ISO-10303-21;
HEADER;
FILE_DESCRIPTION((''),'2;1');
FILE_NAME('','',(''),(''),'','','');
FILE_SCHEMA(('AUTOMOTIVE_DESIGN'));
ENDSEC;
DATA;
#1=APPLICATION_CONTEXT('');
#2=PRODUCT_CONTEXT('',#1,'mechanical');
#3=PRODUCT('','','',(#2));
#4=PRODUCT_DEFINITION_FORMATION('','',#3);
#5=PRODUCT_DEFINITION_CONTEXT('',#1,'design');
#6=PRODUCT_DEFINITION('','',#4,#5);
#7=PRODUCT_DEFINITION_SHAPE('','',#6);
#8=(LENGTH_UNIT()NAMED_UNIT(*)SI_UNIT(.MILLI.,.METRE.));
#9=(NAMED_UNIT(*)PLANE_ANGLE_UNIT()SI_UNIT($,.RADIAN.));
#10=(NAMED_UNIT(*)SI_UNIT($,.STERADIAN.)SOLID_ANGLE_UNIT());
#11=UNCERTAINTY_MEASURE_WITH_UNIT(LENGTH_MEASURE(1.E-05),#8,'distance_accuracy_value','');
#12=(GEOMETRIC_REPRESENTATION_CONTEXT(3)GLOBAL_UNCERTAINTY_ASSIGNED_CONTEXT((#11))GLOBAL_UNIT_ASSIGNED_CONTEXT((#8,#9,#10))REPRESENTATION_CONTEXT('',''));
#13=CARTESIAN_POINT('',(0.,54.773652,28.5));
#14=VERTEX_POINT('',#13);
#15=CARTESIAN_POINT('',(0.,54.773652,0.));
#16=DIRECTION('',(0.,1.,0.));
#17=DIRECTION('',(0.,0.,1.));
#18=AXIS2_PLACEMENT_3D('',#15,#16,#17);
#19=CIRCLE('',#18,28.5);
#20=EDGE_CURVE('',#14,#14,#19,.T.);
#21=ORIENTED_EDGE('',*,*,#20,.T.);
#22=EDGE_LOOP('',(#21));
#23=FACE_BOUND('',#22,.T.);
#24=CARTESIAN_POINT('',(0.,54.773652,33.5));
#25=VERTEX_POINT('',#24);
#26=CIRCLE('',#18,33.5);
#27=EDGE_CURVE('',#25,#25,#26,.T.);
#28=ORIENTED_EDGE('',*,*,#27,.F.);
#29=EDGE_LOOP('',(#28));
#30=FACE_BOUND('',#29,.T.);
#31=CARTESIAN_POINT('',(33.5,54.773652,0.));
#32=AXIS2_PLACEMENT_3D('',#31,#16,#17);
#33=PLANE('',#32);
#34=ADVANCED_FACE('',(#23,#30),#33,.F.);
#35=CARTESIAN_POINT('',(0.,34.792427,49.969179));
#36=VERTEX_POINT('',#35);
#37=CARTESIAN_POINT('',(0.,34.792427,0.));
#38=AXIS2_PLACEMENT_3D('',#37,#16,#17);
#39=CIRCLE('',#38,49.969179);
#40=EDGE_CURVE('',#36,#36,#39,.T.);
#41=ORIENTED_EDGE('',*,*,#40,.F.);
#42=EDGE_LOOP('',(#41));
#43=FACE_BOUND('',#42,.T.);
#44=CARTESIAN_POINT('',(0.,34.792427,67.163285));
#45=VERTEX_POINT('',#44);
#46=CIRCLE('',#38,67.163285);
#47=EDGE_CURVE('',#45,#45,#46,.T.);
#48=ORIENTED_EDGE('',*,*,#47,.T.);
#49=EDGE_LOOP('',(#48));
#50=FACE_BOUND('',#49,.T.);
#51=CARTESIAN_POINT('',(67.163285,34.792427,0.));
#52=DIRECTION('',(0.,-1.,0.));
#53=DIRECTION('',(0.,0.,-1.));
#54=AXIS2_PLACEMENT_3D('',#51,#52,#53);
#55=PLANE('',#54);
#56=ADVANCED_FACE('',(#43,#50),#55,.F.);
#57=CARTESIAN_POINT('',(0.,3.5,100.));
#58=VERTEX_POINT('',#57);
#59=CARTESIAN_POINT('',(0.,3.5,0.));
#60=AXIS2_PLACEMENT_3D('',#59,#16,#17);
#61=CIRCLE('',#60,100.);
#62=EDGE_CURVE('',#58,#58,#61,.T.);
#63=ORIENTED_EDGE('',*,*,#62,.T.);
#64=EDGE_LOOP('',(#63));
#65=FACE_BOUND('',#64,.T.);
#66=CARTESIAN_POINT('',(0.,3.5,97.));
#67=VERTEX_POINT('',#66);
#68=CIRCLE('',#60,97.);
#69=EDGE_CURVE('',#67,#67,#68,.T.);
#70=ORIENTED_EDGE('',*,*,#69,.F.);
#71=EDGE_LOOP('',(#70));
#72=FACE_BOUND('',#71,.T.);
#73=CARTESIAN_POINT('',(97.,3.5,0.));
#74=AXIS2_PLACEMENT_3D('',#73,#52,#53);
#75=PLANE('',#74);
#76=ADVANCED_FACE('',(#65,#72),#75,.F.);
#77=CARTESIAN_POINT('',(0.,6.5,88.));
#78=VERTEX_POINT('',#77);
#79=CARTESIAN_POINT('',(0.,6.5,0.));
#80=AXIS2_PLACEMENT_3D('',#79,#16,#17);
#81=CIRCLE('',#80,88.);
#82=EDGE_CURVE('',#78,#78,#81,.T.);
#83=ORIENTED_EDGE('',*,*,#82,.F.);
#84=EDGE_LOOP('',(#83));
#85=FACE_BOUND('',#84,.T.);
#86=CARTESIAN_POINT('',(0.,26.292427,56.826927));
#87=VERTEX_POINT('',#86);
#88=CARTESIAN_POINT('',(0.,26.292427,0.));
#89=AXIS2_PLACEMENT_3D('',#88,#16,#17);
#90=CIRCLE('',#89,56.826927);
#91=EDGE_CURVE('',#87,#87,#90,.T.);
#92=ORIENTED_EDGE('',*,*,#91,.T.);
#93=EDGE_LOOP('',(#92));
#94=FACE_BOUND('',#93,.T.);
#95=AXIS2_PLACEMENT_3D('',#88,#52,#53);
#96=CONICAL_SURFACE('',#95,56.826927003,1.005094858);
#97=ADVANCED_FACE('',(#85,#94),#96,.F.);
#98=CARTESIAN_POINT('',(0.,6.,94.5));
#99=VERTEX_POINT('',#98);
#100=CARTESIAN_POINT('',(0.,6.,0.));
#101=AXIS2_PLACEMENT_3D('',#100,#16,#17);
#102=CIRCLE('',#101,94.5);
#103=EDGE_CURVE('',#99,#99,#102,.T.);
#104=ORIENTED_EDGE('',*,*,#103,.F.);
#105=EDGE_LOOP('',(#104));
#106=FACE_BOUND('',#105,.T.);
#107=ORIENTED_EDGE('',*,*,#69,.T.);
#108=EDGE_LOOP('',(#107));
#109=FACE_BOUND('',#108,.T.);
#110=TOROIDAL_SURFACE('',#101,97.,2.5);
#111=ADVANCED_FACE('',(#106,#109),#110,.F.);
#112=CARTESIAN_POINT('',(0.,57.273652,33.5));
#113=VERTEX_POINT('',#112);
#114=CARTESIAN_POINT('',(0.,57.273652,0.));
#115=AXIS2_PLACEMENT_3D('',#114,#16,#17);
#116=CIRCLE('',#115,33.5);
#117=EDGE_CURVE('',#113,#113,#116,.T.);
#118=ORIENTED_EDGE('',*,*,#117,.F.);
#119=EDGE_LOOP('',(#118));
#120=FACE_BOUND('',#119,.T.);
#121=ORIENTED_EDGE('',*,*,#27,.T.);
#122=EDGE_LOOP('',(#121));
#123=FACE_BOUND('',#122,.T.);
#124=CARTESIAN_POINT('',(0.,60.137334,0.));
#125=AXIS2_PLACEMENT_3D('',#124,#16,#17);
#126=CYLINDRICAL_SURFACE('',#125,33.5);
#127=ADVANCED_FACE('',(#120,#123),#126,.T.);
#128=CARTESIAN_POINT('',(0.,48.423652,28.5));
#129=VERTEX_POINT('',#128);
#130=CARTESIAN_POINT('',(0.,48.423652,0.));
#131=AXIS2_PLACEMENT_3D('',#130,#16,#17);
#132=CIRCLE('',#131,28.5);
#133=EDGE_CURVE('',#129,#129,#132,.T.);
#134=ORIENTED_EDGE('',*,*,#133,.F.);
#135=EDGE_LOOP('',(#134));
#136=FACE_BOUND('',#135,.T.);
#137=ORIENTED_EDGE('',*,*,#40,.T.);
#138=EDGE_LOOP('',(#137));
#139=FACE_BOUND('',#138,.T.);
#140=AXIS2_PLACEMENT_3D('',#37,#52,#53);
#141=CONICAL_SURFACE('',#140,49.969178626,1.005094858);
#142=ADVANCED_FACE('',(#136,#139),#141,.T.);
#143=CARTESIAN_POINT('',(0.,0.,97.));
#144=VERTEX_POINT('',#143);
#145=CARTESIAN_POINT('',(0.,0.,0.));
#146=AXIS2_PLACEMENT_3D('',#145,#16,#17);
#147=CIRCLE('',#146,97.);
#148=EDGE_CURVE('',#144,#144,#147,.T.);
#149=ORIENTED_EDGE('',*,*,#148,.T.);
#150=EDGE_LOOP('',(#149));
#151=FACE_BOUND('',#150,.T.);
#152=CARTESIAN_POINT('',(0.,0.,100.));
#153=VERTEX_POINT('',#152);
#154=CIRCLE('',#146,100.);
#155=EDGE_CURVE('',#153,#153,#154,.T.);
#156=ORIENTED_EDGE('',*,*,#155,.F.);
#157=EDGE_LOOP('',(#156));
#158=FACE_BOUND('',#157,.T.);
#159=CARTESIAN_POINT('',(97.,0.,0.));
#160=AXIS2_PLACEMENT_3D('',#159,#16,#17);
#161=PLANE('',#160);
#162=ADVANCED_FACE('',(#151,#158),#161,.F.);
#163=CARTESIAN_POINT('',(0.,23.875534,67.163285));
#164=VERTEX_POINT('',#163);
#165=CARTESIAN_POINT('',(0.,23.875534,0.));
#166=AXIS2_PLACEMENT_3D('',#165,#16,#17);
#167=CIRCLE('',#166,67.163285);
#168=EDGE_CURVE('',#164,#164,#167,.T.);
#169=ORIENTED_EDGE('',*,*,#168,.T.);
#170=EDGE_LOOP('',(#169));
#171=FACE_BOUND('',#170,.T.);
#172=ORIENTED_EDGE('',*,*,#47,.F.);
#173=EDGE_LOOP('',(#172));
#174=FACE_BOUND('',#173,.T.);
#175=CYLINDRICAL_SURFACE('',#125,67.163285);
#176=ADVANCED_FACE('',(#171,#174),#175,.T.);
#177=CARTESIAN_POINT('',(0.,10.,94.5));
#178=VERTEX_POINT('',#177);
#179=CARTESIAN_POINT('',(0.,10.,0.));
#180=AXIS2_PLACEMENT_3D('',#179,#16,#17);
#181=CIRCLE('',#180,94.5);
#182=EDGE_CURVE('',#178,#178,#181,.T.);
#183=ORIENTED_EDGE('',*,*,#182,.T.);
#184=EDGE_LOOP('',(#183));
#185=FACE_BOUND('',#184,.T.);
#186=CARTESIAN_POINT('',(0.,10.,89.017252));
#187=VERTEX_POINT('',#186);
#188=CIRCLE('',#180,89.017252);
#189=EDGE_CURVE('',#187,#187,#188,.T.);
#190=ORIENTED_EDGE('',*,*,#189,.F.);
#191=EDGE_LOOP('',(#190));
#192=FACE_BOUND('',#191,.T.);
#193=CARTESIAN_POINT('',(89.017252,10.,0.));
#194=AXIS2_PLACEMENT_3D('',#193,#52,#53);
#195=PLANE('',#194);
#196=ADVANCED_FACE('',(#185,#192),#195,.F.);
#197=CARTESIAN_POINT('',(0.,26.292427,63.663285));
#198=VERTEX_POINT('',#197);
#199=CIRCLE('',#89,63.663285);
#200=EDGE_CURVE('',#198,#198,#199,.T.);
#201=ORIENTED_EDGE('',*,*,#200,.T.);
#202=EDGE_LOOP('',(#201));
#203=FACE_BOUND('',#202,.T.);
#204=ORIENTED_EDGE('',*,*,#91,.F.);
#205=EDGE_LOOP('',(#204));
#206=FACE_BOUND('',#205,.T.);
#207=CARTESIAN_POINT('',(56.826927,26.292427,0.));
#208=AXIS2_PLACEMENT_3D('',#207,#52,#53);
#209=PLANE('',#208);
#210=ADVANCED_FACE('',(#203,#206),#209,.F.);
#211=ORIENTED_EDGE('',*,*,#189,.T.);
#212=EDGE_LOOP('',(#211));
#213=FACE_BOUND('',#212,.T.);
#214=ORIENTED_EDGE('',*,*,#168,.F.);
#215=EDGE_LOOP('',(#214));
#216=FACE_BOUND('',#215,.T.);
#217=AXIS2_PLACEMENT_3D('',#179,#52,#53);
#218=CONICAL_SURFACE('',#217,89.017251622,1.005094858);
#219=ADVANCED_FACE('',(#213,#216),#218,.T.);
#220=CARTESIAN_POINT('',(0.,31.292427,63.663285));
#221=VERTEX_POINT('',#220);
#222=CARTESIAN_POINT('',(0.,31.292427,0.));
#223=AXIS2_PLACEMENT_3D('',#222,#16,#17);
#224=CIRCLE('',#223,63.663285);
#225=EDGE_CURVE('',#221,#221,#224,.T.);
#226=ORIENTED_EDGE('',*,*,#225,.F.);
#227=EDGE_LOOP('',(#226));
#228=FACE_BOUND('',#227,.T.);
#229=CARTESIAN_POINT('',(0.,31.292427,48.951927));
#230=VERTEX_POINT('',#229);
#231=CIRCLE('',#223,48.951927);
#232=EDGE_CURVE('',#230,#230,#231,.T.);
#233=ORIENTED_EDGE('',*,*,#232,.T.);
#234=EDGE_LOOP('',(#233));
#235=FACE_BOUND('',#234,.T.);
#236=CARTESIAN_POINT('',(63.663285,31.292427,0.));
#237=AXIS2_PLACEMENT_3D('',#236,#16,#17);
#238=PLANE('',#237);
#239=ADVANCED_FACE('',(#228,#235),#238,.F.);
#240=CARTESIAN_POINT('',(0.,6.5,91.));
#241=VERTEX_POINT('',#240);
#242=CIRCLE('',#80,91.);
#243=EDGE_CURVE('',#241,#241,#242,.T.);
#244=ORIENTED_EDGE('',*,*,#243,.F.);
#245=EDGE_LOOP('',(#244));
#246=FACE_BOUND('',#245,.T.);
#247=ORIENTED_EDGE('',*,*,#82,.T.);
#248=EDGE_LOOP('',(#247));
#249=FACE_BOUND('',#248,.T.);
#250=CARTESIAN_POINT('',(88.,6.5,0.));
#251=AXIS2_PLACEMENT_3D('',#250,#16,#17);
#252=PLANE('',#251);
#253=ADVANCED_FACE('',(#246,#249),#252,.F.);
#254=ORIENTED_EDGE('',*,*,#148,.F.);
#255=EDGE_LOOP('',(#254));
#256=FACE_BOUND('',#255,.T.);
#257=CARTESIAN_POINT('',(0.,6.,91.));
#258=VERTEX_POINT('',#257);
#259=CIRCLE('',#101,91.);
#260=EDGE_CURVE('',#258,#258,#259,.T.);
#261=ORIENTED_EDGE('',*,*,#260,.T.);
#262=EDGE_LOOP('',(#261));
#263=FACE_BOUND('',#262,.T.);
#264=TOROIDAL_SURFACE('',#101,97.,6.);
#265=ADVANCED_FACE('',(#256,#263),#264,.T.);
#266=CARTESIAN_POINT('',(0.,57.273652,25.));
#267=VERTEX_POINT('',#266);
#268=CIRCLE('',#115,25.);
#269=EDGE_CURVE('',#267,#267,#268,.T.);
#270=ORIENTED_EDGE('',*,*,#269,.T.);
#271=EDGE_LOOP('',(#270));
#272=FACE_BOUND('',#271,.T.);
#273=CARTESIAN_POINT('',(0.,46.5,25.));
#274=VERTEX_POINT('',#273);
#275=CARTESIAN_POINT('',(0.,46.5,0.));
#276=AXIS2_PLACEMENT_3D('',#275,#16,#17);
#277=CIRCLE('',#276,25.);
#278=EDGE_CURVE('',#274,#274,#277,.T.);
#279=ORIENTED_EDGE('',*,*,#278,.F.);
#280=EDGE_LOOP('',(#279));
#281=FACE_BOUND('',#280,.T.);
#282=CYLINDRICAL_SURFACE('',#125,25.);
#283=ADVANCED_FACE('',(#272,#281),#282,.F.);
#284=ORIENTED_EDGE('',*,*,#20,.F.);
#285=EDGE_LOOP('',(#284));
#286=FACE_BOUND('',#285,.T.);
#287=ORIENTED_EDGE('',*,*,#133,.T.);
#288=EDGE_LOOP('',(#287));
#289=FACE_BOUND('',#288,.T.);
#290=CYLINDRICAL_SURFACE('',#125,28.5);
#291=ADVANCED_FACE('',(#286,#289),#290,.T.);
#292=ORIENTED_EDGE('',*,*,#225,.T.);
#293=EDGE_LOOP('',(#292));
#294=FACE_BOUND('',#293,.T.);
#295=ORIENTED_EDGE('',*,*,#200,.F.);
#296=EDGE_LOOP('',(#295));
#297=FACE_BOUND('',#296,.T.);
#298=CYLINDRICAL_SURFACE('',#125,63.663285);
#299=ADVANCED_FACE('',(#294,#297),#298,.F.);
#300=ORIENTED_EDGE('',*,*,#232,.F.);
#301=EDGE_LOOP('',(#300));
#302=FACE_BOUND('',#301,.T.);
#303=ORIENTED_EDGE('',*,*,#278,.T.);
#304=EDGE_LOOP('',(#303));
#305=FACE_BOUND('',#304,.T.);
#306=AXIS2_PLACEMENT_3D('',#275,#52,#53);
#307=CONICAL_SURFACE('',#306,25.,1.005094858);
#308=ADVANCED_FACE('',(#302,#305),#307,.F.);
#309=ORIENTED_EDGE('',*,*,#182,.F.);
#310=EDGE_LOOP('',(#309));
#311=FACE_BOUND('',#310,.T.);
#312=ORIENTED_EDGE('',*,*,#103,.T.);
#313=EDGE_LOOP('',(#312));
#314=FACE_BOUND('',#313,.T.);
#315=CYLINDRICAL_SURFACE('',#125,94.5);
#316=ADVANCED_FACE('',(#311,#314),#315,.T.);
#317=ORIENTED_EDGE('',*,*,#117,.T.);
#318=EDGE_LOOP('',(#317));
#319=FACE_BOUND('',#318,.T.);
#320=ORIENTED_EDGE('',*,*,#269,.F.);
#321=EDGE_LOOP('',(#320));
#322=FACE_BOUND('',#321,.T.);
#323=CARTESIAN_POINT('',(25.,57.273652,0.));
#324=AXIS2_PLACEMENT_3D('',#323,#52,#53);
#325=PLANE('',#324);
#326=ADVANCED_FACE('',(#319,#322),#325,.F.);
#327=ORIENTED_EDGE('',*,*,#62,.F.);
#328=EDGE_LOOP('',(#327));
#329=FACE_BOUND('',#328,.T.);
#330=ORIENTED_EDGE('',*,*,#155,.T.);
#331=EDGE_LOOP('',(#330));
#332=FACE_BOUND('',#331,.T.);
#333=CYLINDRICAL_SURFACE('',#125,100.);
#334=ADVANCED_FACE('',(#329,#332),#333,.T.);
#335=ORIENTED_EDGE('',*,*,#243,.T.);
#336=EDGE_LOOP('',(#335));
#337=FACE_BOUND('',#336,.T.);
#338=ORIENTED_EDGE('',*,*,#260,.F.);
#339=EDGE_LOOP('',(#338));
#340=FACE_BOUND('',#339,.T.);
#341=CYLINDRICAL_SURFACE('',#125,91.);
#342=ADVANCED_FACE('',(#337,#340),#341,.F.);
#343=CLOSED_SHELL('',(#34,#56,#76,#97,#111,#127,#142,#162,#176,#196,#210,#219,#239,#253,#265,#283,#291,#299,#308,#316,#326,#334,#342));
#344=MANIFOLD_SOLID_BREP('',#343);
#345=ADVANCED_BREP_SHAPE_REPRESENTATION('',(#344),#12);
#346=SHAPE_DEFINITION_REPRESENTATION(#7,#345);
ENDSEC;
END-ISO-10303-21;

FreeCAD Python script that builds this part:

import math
import FreeCAD as App
import Part
import Sketcher
from FreeCAD import Vector

doc = App.newDocument("Part")
body = doc.addObject("PartDesign::Body", "Body")

sketch1 = doc.addObject("Sketcher::SketchObject", "Sketch")
body.addObject(sketch1)
sketch1.AttachmentSupport = (doc.XY_Plane, [""])
sketch1.MapMode = "FlatFace"
sketch1.addGeometry(Part.LineSegment(Vector(56.8, 26.3, 0), Vector(88, 6.5, 0)), False)
sketch1.addGeometry(Part.LineSegment(Vector(88, 6.5, 0), Vector(91, 6.5, 0)), False)
sketch1.addGeometry(Part.LineSegment(Vector(91, 6.5, 0), Vector(91, 6, 0)), False)
sketch1.addGeometry(Part.ArcOfCircle(Part.Circle(Vector(97, 6, 0), Vector(0, 0, 1), 6), math.radians(180), math.radians(270)), False)
sketch1.addGeometry(Part.LineSegment(Vector(97, 0, 0), Vector(100, 0, 0)), False)
sketch1.addGeometry(Part.LineSegment(Vector(100, 0, 0), Vector(100, 3.5, 0)), False)
sketch1.addGeometry(Part.LineSegment(Vector(100, 3.5, 0), Vector(97, 3.5, 0)), False)
sketch1.addGeometry(Part.ArcOfCircle(Part.Circle(Vector(97, 6, 0), Vector(0, 0, 1), 2.5), math.radians(180), math.radians(270)), False)
sketch1.addGeometry(Part.LineSegment(Vector(94.5, 6, 0), Vector(94.5, 10, 0)), False)
sketch1.addGeometry(Part.LineSegment(Vector(94.5, 10, 0), Vector(89, 10, 0)), False)
sketch1.addGeometry(Part.LineSegment(Vector(89, 10, 0), Vector(67.2, 23.9, 0)), False)
sketch1.addGeometry(Part.LineSegment(Vector(67.2, 23.9, 0), Vector(67.2, 34.8, 0)), False)
sketch1.addGeometry(Part.LineSegment(Vector(67.2, 34.8, 0), Vector(50, 34.8, 0)), False)
sketch1.addGeometry(Part.LineSegment(Vector(50, 34.8, 0), Vector(28.5, 48.4, 0)), False)
sketch1.addGeometry(Part.LineSegment(Vector(28.5, 48.4, 0), Vector(28.5, 54.8, 0)), False)
sketch1.addGeometry(Part.LineSegment(Vector(28.5, 54.8, 0), Vector(33.5, 54.8, 0)), False)
sketch1.addGeometry(Part.LineSegment(Vector(33.5, 54.8, 0), Vector(33.5, 57.3, 0)), False)
sketch1.addGeometry(Part.LineSegment(Vector(33.5, 57.3, 0), Vector(25, 57.3, 0)), False)
sketch1.addGeometry(Part.LineSegment(Vector(25, 57.3, 0), Vector(25, 46.5, 0)), False)
sketch1.addGeometry(Part.LineSegment(Vector(25, 46.5, 0), Vector(49, 31.3, 0)), False)
sketch1.addGeometry(Part.LineSegment(Vector(49, 31.3, 0), Vector(63.7, 31.3, 0)), False)
sketch1.addGeometry(Part.LineSegment(Vector(63.7, 31.3, 0), Vector(63.7, 26.3, 0)), False)
sketch1.addGeometry(Part.LineSegment(Vector(63.7, 26.3, 0), Vector(56.8, 26.3, 0)), False)
sketch1.addConstraint(Sketcher.Constraint("Coincident", 0, 2, 1, 1))
sketch1.addConstraint(Sketcher.Constraint("Coincident", 1, 2, 2, 1))
sketch1.addConstraint(Sketcher.Constraint("Tangent", 2, 2, 3, 1))
sketch1.addConstraint(Sketcher.Constraint("Tangent", 3, 2, 4, 1))
sketch1.addConstraint(Sketcher.Constraint("Coincident", 4, 2, 5, 1))
sketch1.addConstraint(Sketcher.Constraint("Coincident", 5, 2, 6, 1))
sketch1.addConstraint(Sketcher.Constraint("Tangent", 6, 2, 7, 2))
sketch1.addConstraint(Sketcher.Constraint("Tangent", 7, 1, 8, 1))
sketch1.addConstraint(Sketcher.Constraint("Coincident", 8, 2, 9, 1))
sketch1.addConstraint(Sketcher.Constraint("Coincident", 9, 2, 10, 1))
sketch1.addConstraint(Sketcher.Constraint("Coincident", 10, 2, 11, 1))
sketch1.addConstraint(Sketcher.Constraint("Coincident", 11, 2, 12, 1))
sketch1.addConstraint(Sketcher.Constraint("Coincident", 12, 2, 13, 1))
sketch1.addConstraint(Sketcher.Constraint("Coincident", 13, 2, 14, 1))
sketch1.addConstraint(Sketcher.Constraint("Coincident", 14, 2, 15, 1))
sketch1.addConstraint(Sketcher.Constraint("Coincident", 15, 2, 16, 1))
sketch1.addConstraint(Sketcher.Constraint("Coincident", 16, 2, 17, 1))
sketch1.addConstraint(Sketcher.Constraint("Coincident", 17, 2, 18, 1))
sketch1.addConstraint(Sketcher.Constraint("Coincident", 18, 2, 19, 1))
sketch1.addConstraint(Sketcher.Constraint("Coincident", 19, 2, 20, 1))
sketch1.addConstraint(Sketcher.Constraint("Coincident", 20, 2, 21, 1))
sketch1.addConstraint(Sketcher.Constraint("Coincident", 21, 2, 22, 1))
sketch1.addConstraint(Sketcher.Constraint("Coincident", 22, 2, 0, 1))
sketch1.addConstraint(Sketcher.Constraint("Horizontal", 1))
sketch1.addConstraint(Sketcher.Constraint("Vertical", 2))
sketch1.addConstraint(Sketcher.Constraint("Horizontal", 4))
sketch1.addConstraint(Sketcher.Constraint("Vertical", 5))
sketch1.addConstraint(Sketcher.Constraint("Horizontal", 6))
sketch1.addConstraint(Sketcher.Constraint("Vertical", 8))
sketch1.addConstraint(Sketcher.Constraint("Horizontal", 9))
sketch1.addConstraint(Sketcher.Constraint("Vertical", 11))
sketch1.addConstraint(Sketcher.Constraint("Horizontal", 12))
sketch1.addConstraint(Sketcher.Constraint("Vertical", 14))
sketch1.addConstraint(Sketcher.Constraint("Horizontal", 15))
sketch1.addConstraint(Sketcher.Constraint("Vertical", 16))
sketch1.addConstraint(Sketcher.Constraint("Horizontal", 17))
sketch1.addConstraint(Sketcher.Constraint("Vertical", 18))
sketch1.addConstraint(Sketcher.Constraint("Horizontal", 20))
sketch1.addConstraint(Sketcher.Constraint("Vertical", 21))
sketch1.addConstraint(Sketcher.Constraint("Horizontal", 22))
sketch1.addConstraint(Sketcher.Constraint("Coincident", 7, 3, 3, 3))
sketch1.addConstraint(Sketcher.Constraint("PointOnObject", 3, 2, -1))
sketch1.addConstraint(Sketcher.Constraint("Parallel", 0, 10))
sketch1.addConstraint(Sketcher.Constraint("Parallel", 10, 13))
sketch1.addConstraint(Sketcher.Constraint("Parallel", 13, 19))
sketch1.addConstraint(Sketcher.Constraint("Equal", 1, 4))
sketch1.addConstraint(Sketcher.Constraint("Equal", 15, 21))
sketch1.addConstraint(Sketcher.Constraint("Radius", 3, 6.0))
sketch1.addConstraint(Sketcher.Constraint("Radius", 7, 2.5))
sketch1.addConstraint(Sketcher.Constraint("DistanceX", 1, 1, 1, 2, 3.0))
sketch1.addConstraint(Sketcher.Constraint("DistanceX", 15, 1, 15, 2, 5.0))
sketch1.addConstraint(Sketcher.Constraint("DistanceY", 8, 1, 8, 2, 4.0))
sketch1.addConstraint(Sketcher.Constraint("DistanceX", 17, 2, 17, 1, 8.5))
sketch1.addConstraint(Sketcher.Constraint("DistanceY", 2, 2, 2, 1, 0.5))
sketch1.addConstraint(Sketcher.Constraint("DistanceY", 16, 1, 16, 2, 2.5))
sketch1.addConstraint(Sketcher.Constraint("DistanceX", -1, 1, 3, 3, 97.0))
sketch1.addConstraint(Sketcher.Constraint("DistanceX", -1, 1, 17, 2, 25.0))
sketch1.addConstraint(Sketcher.Constraint("DistanceY", 14, 1, 14, 2, 6.35))
sketch1.addConstraint(Sketcher.Constraint("DistanceY", -1, 1, 18, 2, 46.5))
sketch1.addConstraint(Sketcher.Constraint("DistanceY", 19, 2, 12, 2, 3.5))
sketch1.addConstraint(Sketcher.Constraint("DistanceX", 20, 2, 11, 2, 3.5))
sketch1.addConstraint(Sketcher.Constraint("DistanceX", 19, 2, 22, 2, 7.875))
sketch1.addConstraint(Sketcher.Constraint("DistanceX", 9, 2, 9, 1, 5.482748))
sketch1.addConstraint(Sketcher.Constraint("DistanceX", 20, 1, 20, 2, 14.711358))
sketch1.addConstraint(Sketcher.Constraint("DistanceY", 18, 2, 18, 1, 10.773652))
sketch1.addConstraint(Sketcher.Constraint("Distance", 0, 36.92561))
revolution = doc.addObject("PartDesign::Revolution", "Revolution")
body.addObject(revolution)
revolution.Profile = sketch1
revolution.ReferenceAxis = (sketch1, ["V_Axis"])
revolution.Angle = 360

doc.recompute()
